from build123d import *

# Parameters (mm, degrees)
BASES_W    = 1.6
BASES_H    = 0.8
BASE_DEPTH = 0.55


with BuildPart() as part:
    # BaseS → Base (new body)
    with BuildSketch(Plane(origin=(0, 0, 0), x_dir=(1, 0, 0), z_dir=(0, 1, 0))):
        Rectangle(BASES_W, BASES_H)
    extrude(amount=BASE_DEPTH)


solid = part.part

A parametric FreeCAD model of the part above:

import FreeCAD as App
import Part
import Sketcher
Q = App.Units.Quantity

doc = App.newDocument("Part")
body = doc.addObject("PartDesign::Body", "Body")

# Sketch on XZ plane
sketch1 = body.newObject("Sketcher::SketchObject", "Sketch")
sketch1.AttachmentSupport = (doc.getObject("XZ_Plane"), [""])
sketch1.MapMode = "FlatFace"
sketch1.addGeometry(Part.LineSegment(App.Vector(-0.8, -0.4, 0), App.Vector(-0.8, 0.4, 0)), False)
sketch1.addGeometry(Part.LineSegment(App.Vector(-0.8, 0.4, 0), App.Vector(0.8, 0.4, 0)), False)
sketch1.addGeometry(Part.LineSegment(App.Vector(0.8, 0.4, 0), App.Vector(0.8, -0.4, 0)), False)
sketch1.addGeometry(Part.LineSegment(App.Vector(0.8, -0.4, 0), App.Vector(-0.8, -0.4, 0)), False)
sketch1.addConstraint(Sketcher.Constraint("Coincident", 0, 2, 1, 1))
sketch1.addConstraint(Sketcher.Constraint("Coincident", 1, 2, 2, 1))
sketch1.addConstraint(Sketcher.Constraint("Coincident", 2, 2, 3, 1))
sketch1.addConstraint(Sketcher.Constraint("Coincident", 3, 2, 0, 1))
sketch1.addConstraint(Sketcher.Constraint("Vertical", 0))
sketch1.addConstraint(Sketcher.Constraint("Horizontal", 1))
sketch1.addConstraint(Sketcher.Constraint("Vertical", 2))
sketch1.addConstraint(Sketcher.Constraint("Horizontal", 3))
sketch1.addConstraint(Sketcher.Constraint("Symmetric", 0, 2, 2, 2, -1, 1))
sketch1.addConstraint(Sketcher.Constraint("DistanceX", 1, 1, 1, 2, Q("1.6 mm")))
sketch1.addConstraint(Sketcher.Constraint("DistanceY", 0, 1, 0, 2, Q("0.8 mm")))
pad1 = body.newObject("PartDesign::Pad", "Pad")
pad1.Profile = sketch1
pad1.Length = 0.55
pad1.Reversed = True

doc.recompute()
